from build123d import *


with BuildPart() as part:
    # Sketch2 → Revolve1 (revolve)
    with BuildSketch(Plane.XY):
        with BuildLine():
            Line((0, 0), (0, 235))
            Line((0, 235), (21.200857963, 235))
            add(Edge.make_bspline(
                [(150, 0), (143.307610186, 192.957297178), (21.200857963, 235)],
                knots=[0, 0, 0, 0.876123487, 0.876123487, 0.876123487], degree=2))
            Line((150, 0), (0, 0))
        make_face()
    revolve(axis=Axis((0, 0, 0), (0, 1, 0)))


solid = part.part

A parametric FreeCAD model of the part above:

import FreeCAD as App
import Part
import Sketcher
from FreeCAD import Vector

doc = App.newDocument("Part")
body = doc.addObject("PartDesign::Body", "Body")

# Sketch on XY plane
sketch1 = body.newObject("Sketcher::SketchObject", "Sketch")
sketch1.AttachmentSupport = (doc.getObject("XY_Plane"), [""])
sketch1.MapMode = "FlatFace"
sketch1.addGeometry([
    Part.LineSegment(Vector(0, 235, 0), Vector(0, 0, 0)),
    Part.LineSegment(Vector(0, 0, 0), Vector(150, 0, 0)),
    Part.BSplineCurve([Vector(150, 0, 0), Vector(143.30761, 192.957297, 0), Vector(21.200858, 235, 0)], [3, 3], [0, 0.876123487], False, 2, [1, 1, 1], False),
    Part.LineSegment(Vector(21.200858, 235, 0), Vector(0, 235, 0)),
], False)
sketch1.addConstraint([
    Sketcher.Constraint("Block", 2),
    Sketcher.Constraint("Coincident", 0, 2, 1, 1),
    Sketcher.Constraint("Coincident", 1, 2, 2, 1),
    Sketcher.Constraint("Coincident", 2, 2, 3, 1),
    Sketcher.Constraint("Coincident", 3, 2, 0, 1),
    Sketcher.Constraint("Vertical", 0),
    Sketcher.Constraint("Horizontal", 1),
    Sketcher.Constraint("Horizontal", 3),
    Sketcher.Constraint("PointOnObject", 3, 2, -2),
])
revolution = body.newObject("PartDesign::Revolution", "Revolution")
revolution.Profile = sketch1
revolution.ReferenceAxis = (sketch1, ["V_Axis"])
revolution.Angle = 360

doc.recompute()
